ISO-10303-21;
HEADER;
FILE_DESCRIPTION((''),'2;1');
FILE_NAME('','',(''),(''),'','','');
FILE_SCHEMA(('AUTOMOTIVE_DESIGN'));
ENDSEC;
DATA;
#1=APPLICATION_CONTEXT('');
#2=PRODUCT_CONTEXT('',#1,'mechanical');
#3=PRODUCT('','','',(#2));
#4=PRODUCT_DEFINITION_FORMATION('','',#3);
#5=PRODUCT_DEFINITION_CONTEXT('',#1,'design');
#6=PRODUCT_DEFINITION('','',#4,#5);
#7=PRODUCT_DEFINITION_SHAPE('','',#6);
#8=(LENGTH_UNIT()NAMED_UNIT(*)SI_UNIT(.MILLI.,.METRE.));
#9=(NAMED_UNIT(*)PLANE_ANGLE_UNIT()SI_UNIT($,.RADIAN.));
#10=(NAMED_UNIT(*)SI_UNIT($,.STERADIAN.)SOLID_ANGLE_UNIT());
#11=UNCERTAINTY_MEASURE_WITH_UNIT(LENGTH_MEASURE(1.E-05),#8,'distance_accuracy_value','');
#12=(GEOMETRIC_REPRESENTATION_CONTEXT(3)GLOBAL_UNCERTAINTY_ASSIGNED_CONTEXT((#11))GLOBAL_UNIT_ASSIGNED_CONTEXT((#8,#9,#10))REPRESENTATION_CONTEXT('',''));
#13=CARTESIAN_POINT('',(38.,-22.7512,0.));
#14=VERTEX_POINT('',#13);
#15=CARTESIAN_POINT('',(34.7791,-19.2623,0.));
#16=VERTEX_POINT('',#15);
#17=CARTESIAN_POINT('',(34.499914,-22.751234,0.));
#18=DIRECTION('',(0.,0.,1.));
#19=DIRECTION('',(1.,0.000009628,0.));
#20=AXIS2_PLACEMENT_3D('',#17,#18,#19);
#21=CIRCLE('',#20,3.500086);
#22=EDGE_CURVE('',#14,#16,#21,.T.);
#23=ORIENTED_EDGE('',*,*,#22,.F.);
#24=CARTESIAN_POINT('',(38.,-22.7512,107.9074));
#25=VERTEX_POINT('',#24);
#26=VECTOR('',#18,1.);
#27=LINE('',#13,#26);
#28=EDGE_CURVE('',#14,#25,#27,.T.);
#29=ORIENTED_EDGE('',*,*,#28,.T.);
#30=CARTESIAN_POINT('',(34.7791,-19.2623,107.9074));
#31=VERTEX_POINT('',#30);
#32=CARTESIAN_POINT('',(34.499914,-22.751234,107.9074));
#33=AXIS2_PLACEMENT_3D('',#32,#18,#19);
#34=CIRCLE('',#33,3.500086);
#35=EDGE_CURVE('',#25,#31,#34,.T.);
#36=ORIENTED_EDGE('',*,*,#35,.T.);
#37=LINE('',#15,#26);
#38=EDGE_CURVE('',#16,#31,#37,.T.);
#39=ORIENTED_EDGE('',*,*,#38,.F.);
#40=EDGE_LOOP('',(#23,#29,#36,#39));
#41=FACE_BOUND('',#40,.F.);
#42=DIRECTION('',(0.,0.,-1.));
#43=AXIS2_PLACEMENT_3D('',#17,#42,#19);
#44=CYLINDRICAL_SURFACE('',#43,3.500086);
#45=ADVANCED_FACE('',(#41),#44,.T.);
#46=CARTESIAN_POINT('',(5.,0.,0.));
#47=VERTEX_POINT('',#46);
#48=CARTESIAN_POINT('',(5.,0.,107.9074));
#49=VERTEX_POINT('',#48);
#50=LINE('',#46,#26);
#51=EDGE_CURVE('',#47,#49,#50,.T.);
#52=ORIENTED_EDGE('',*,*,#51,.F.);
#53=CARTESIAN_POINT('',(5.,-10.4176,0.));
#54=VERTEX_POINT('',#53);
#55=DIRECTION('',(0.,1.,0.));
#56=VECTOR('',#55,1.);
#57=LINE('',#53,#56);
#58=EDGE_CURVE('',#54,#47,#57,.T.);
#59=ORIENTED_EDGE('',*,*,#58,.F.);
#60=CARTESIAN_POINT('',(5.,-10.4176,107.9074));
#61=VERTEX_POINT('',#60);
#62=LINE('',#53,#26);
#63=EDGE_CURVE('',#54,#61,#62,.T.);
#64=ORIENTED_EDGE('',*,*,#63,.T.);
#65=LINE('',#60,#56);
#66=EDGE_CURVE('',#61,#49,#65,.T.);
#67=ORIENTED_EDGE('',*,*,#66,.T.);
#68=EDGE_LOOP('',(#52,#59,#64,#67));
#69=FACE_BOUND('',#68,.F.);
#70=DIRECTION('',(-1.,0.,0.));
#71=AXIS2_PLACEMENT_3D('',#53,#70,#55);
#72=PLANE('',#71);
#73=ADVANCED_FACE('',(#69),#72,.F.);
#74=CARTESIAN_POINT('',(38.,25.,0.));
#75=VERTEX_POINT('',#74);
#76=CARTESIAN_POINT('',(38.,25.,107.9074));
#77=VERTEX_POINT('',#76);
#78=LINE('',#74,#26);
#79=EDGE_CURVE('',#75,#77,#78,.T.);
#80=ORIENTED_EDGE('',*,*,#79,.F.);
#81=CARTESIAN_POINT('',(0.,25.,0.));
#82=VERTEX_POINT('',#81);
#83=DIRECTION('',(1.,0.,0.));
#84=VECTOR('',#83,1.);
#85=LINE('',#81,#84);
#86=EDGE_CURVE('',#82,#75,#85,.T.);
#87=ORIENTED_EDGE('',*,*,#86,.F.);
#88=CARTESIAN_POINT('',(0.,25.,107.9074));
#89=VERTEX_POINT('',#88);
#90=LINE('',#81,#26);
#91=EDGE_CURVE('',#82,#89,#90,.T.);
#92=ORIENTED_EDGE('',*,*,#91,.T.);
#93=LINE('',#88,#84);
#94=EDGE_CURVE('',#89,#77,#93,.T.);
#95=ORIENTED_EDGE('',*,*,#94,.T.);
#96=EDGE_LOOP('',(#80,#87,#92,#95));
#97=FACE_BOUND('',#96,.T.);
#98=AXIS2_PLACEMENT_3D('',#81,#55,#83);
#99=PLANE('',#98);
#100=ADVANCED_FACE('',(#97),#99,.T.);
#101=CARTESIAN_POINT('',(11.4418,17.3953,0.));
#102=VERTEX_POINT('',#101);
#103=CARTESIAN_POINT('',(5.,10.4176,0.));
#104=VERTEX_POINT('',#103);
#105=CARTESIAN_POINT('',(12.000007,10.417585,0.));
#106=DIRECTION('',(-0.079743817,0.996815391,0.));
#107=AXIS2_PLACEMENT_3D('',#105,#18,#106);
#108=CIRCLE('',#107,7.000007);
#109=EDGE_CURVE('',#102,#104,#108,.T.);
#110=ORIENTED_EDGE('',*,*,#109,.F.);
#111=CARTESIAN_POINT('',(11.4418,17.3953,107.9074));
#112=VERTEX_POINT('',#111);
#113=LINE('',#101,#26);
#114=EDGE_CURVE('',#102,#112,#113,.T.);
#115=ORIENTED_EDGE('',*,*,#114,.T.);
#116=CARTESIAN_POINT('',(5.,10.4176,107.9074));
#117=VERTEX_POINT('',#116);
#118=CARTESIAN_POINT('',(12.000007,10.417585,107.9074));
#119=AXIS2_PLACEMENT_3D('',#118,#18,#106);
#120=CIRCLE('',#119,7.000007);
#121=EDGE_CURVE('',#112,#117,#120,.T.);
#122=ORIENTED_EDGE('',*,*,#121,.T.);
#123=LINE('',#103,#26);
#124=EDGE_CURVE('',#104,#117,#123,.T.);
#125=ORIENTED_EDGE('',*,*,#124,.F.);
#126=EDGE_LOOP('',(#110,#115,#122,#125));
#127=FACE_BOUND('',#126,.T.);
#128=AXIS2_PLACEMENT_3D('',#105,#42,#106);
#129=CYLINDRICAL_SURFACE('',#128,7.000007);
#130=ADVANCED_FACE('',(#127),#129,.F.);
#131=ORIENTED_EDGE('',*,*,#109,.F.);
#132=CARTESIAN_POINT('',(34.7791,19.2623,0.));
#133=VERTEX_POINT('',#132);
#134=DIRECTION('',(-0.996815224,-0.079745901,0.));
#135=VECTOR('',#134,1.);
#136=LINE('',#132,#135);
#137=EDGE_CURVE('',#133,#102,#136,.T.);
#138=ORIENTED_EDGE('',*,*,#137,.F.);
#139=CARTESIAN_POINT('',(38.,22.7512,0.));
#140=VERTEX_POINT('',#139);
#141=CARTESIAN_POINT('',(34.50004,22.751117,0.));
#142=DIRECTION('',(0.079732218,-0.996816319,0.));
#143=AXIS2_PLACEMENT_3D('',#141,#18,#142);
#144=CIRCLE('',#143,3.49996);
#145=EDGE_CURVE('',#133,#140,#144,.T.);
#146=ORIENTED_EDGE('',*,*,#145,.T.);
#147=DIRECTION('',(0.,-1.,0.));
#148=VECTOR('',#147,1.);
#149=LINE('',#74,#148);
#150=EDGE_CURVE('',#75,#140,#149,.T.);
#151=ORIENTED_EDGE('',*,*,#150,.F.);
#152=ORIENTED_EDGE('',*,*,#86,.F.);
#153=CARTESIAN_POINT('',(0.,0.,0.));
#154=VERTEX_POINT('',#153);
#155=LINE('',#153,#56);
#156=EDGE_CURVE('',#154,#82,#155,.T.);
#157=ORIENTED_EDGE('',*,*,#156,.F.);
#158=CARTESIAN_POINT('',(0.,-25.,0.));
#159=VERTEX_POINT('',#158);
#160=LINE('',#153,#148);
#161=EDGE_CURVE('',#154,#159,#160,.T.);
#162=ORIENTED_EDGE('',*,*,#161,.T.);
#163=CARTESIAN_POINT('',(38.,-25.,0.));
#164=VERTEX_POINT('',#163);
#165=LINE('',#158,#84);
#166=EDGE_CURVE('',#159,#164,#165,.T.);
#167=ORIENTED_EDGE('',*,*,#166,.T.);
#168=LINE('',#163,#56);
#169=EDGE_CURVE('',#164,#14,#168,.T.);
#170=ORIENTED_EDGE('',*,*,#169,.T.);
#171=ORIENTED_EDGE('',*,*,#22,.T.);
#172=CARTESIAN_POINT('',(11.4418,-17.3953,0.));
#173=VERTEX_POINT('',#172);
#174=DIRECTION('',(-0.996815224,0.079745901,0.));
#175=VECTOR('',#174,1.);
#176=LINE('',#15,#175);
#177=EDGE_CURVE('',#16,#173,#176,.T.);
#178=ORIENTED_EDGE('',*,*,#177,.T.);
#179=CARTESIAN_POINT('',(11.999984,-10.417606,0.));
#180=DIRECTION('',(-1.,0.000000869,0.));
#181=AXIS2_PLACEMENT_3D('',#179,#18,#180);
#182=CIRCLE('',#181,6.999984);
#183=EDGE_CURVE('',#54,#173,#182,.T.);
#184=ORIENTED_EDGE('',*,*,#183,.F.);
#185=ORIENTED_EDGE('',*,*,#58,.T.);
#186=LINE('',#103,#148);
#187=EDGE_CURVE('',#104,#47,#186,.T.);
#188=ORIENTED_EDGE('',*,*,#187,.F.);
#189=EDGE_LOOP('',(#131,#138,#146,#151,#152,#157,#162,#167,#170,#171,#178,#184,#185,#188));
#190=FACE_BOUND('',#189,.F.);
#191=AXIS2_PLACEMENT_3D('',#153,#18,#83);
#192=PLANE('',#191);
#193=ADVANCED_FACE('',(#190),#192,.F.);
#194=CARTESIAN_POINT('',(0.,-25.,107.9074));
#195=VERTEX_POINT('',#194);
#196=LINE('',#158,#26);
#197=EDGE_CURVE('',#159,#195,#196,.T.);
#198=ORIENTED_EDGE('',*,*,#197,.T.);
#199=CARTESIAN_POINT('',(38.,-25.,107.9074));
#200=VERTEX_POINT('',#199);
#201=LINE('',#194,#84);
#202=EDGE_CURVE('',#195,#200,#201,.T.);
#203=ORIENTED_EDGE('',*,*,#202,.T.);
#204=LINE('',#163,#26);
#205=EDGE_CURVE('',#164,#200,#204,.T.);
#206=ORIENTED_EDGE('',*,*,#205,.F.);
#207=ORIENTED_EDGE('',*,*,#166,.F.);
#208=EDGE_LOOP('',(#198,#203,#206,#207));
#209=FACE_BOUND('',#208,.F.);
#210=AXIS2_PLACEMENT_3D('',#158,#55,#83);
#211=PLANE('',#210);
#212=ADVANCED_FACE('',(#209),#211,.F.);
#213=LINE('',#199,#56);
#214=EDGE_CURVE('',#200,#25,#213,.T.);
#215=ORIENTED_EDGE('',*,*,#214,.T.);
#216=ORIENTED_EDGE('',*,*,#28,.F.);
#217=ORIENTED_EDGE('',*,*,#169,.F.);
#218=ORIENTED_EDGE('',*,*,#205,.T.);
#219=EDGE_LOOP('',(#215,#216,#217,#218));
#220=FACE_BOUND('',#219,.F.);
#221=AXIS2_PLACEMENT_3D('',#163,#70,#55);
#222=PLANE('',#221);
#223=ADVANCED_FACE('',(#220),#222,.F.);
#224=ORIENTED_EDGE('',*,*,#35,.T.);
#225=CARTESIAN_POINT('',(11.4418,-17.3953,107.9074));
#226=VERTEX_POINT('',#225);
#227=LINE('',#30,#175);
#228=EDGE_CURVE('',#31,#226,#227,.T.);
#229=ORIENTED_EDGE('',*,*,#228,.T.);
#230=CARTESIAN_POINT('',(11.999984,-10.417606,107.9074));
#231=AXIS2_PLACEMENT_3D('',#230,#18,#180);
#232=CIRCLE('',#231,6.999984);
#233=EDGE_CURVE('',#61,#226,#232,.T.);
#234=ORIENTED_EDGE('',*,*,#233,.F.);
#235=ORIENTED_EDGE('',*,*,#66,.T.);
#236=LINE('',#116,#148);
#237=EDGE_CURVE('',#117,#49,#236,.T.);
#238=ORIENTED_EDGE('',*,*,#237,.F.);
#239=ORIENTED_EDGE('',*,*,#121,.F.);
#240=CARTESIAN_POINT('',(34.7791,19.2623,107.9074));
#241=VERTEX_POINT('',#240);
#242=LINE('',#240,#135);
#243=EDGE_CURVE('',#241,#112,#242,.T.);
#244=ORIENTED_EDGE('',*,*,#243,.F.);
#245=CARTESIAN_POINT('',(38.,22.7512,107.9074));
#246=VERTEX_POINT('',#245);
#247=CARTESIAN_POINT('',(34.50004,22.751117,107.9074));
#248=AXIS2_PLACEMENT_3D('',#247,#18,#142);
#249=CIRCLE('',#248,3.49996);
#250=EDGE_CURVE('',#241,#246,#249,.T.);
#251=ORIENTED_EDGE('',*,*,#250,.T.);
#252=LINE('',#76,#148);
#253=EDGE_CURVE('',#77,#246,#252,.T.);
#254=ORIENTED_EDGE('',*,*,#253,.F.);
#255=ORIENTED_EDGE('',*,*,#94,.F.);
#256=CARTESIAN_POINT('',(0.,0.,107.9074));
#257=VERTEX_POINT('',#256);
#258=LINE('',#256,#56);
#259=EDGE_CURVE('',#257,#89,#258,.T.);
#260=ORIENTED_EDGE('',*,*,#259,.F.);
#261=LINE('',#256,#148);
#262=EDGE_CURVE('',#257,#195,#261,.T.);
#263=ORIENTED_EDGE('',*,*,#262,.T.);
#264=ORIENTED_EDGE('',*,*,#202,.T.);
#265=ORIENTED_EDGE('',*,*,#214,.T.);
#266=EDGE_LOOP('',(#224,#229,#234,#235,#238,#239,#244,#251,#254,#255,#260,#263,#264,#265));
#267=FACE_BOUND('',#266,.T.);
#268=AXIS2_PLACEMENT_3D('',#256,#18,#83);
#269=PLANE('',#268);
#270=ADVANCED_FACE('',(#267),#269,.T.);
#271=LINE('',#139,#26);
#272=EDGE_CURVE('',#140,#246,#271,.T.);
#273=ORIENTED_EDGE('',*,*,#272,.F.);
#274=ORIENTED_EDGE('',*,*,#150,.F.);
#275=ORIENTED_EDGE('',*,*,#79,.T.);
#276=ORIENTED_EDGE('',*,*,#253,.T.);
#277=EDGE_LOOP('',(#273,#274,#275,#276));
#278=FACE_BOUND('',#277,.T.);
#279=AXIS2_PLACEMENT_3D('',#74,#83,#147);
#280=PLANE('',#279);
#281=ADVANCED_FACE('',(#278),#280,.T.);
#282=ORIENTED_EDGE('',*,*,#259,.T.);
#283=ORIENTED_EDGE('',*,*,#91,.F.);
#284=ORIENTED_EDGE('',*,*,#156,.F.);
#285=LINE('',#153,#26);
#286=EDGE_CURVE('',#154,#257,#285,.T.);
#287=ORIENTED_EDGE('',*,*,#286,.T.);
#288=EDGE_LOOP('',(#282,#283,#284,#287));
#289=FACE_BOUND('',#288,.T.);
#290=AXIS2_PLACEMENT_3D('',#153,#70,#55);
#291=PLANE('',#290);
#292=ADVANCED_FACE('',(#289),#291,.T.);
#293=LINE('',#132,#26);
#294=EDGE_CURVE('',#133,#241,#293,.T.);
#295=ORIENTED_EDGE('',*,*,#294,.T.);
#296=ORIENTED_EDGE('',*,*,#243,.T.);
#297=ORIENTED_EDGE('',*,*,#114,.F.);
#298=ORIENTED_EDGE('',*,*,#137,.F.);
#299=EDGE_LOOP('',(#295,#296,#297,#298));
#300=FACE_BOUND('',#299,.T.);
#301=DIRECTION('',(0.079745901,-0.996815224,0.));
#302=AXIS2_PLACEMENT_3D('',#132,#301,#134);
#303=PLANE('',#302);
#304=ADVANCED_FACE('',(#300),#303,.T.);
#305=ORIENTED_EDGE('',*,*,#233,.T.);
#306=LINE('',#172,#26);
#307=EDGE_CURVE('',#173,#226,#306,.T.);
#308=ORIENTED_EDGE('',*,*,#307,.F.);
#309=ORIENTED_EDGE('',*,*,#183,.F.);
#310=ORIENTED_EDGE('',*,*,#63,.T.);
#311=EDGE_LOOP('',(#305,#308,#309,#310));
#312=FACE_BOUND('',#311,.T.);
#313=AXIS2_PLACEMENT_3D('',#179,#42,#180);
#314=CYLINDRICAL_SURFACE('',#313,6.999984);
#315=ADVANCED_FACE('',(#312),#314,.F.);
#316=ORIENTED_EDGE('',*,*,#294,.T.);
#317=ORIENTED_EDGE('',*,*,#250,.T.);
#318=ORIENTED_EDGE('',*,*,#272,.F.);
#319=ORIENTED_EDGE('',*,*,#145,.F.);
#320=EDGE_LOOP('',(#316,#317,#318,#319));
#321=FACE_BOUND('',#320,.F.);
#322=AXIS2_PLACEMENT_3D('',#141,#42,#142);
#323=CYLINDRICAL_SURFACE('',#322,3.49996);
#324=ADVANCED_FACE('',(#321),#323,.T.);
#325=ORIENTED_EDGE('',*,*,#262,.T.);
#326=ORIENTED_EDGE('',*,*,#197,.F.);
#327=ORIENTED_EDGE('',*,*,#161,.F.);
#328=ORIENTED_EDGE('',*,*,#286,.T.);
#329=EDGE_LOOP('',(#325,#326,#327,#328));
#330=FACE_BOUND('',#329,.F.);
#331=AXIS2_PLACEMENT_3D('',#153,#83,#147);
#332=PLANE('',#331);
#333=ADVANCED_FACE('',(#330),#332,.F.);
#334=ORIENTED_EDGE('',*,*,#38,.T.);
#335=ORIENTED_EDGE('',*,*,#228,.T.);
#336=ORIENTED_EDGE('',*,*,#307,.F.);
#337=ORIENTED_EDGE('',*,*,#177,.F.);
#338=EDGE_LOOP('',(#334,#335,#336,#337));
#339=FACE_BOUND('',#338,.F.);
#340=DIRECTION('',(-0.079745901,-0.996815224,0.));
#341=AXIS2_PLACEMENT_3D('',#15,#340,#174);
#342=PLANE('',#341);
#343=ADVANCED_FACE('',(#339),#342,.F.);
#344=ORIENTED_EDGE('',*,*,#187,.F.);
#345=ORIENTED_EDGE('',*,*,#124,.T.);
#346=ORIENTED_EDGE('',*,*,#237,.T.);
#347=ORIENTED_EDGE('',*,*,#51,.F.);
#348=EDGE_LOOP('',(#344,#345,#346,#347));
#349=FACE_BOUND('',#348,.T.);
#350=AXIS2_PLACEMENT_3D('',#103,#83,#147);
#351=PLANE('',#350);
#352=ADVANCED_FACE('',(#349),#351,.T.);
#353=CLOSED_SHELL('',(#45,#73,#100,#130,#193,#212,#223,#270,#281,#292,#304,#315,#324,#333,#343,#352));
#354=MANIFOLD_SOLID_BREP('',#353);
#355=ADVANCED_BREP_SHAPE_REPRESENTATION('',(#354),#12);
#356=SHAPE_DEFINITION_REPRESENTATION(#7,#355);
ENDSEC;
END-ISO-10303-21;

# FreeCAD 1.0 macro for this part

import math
import FreeCAD as App
import Part
import Sketcher

doc = App.newDocument("Part")
body = doc.addObject("PartDesign::Body", "Body")

# Sketch on XY plane
sketch1 = body.newObject("Sketcher::SketchObject", "Sketch")
sketch1.AttachmentSupport = (doc.getObject("XY_Plane"), [""])
sketch1.MapMode = "FlatFace"
sketch1.addGeometry(Part.LineSegment(App.Vector(0, 25, 0), App.Vector(0, -25, 0)), False)
sketch1.addGeometry(Part.LineSegment(App.Vector(0, -25, 0), App.Vector(38, -25, 0)), False)
sketch1.addGeometry(Part.LineSegment(App.Vector(38, -25, 0), App.Vector(38, -22.7512, 0)), False)
sketch1.addGeometry(Part.ArcOfCircle(Part.Circle(App.Vector(34.5, -22.7512, 0), App.Vector(0, 0, 1), 3.5), math.radians(0), math.radians(85.426275)), False)
sketch1.addGeometry(Part.LineSegment(App.Vector(34.7791, -19.2623, 0), App.Vector(11.4418, -17.3953, 0)), False)
sketch1.addGeometry(Part.ArcOfCircle(Part.Circle(App.Vector(12, -10.4176, 0), App.Vector(0, 0, 1), 7), math.radians(180), math.radians(265.426209)), False)
sketch1.addGeometry(Part.LineSegment(App.Vector(5, -10.4176, 0), App.Vector(5, 10.4176, 0)), False)
sketch1.addGeometry(Part.ArcOfCircle(Part.Circle(App.Vector(12, 10.4176, 0), App.Vector(0, 0, 1), 6.999992), math.radians(94.573791), math.radians(180)), False)
sketch1.addGeometry(Part.LineSegment(App.Vector(11.4418, 17.3953, 0), App.Vector(34.7791, 19.2623, 0)), False)
sketch1.addGeometry(Part.ArcOfCircle(Part.Circle(App.Vector(34.5, 22.7512, 0), App.Vector(0, 0, 1), 3.500046), math.radians(-85.426275), math.radians(0)), False)
sketch1.addGeometry(Part.LineSegment(App.Vector(38, 22.7512, 0), App.Vector(38, 25, 0)), False)
sketch1.addGeometry(Part.LineSegment(App.Vector(38, 25, 0), App.Vector(0, 25, 0)), False)
sketch1.addConstraint(Sketcher.Constraint("Coincident", 0, 2, 1, 1))
sketch1.addConstraint(Sketcher.Constraint("Coincident", 1, 2, 2, 1))
sketch1.addConstraint(Sketcher.Constraint("Tangent", 2, 2, 3, 1))
sketch1.addConstraint(Sketcher.Constraint("Tangent", 3, 2, 4, 1))
sketch1.addConstraint(Sketcher.Constraint("Tangent", 4, 2, 5, 2))
sketch1.addConstraint(Sketcher.Constraint("Tangent", 5, 1, 6, 1))
sketch1.addConstraint(Sketcher.Constraint("Tangent", 6, 2, 7, 2))
sketch1.addConstraint(Sketcher.Constraint("Tangent", 7, 1, 8, 1))
sketch1.addConstraint(Sketcher.Constraint("Tangent", 8, 2, 9, 1))
sketch1.addConstraint(Sketcher.Constraint("Tangent", 9, 2, 10, 1))
sketch1.addConstraint(Sketcher.Constraint("Coincident", 10, 2, 11, 1))
sketch1.addConstraint(Sketcher.Constraint("Coincident", 11, 2, 0, 1))
sketch1.addConstraint(Sketcher.Constraint("Vertical", 0))
sketch1.addConstraint(Sketcher.Constraint("Horizontal", 1))
sketch1.addConstraint(Sketcher.Constraint("Vertical", 2))
sketch1.addConstraint(Sketcher.Constraint("Vertical", 6))
sketch1.addConstraint(Sketcher.Constraint("Vertical", 10))
sketch1.addConstraint(Sketcher.Constraint("Horizontal", 11))
sketch1.addConstraint(Sketcher.Constraint("Equal", 5, 7))
sketch1.addConstraint(Sketcher.Constraint("Equal", 3, 9))
sketch1.addConstraint(Sketcher.Constraint("Symmetric", 0, 2, 11, 2, -1, 1))
sketch1.addConstraint(Sketcher.Constraint("Symmetric", 3, 3, 9, 3, -1))
sketch1.addConstraint(Sketcher.Constraint("Vertical", 4, 2, 7, 1))
sketch1.addConstraint(Sketcher.Constraint("Radius", 5, 7.0))
sketch1.addConstraint(Sketcher.Constraint("Radius", 3, 3.5))
sketch1.addConstraint(Sketcher.Constraint("DistanceX", 1, 1, 1, 2, 38.0))
sketch1.addConstraint(Sketcher.Constraint("DistanceY", 0, 2, -1, 1, 25.0))
sketch1.addConstraint(Sketcher.Constraint("DistanceX", -1, 1, 5, 1, 5.0))
sketch1.addConstraint(Sketcher.Constraint("DistanceY", 5, 3, 8, 2, 29.68))
sketch1.addConstraint(Sketcher.Constraint("DistanceY", 2, 1, 2, 2, 2.2488))
pad1 = body.newObject("PartDesign::Pad", "Pad")
pad1.Profile = sketch1
pad1.Length = 107.9074

doc.recompute()
